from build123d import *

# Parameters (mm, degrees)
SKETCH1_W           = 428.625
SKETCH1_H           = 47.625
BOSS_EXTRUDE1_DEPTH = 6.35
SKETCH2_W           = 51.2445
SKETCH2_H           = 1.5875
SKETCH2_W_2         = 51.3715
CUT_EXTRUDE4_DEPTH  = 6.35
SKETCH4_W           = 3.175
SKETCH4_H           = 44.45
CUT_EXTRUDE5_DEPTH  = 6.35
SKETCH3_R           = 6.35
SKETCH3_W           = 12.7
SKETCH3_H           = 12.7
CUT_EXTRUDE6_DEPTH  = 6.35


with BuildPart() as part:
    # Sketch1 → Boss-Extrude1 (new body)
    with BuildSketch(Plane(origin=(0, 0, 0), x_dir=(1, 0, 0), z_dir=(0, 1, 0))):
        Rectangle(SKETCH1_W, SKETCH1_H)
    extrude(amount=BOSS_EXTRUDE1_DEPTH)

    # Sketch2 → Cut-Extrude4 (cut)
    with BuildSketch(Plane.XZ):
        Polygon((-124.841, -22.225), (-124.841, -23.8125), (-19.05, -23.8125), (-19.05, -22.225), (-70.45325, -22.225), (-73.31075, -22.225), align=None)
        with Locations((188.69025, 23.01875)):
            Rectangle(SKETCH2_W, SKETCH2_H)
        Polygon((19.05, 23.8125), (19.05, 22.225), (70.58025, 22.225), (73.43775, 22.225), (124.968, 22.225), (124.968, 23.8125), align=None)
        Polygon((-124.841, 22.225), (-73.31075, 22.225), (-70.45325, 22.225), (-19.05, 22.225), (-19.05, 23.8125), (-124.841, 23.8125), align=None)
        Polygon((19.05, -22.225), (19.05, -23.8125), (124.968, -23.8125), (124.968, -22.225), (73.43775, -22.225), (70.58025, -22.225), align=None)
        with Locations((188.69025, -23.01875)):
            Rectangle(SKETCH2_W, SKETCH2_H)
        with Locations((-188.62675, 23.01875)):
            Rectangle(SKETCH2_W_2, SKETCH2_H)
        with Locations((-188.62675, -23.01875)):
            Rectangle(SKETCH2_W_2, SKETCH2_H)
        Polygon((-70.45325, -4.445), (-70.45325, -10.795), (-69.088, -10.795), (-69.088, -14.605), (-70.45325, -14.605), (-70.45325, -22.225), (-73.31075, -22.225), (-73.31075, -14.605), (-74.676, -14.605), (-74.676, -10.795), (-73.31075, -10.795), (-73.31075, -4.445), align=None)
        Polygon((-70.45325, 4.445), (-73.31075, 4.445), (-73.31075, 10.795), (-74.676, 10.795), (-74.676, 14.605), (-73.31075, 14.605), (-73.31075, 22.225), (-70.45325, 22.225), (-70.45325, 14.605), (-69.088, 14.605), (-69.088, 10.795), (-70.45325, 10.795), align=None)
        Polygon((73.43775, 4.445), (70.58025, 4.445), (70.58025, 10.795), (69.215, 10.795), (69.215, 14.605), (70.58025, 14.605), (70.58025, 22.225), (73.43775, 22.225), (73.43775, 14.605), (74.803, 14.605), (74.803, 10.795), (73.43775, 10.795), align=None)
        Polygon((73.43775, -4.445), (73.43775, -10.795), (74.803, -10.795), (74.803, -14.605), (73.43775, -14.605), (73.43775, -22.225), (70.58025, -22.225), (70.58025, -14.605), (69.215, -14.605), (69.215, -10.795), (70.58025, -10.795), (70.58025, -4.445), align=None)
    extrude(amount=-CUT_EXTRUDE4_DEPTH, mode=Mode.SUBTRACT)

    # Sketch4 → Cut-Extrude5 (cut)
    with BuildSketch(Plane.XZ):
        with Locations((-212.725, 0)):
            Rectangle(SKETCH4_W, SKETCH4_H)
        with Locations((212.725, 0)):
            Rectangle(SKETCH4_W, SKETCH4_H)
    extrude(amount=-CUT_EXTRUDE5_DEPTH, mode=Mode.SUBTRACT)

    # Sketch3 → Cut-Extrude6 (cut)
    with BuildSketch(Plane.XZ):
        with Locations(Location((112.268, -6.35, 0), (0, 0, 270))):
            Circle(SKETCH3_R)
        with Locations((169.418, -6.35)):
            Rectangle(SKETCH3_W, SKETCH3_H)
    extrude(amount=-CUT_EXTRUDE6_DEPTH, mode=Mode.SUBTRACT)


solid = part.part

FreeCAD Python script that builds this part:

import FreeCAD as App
import Part
import Sketcher
from FreeCAD import Vector
Q = App.Units.Quantity


def add_polygon(sketch, points):
    """Adds a closed chain of lines whose ends are joined by coincident constraints."""
    first, n = sketch.GeometryCount, len(points)
    for a, b in zip(points, points[1:] + points[:1]):
        sketch.addGeometry(Part.LineSegment(App.Vector(*a, 0), App.Vector(*b, 0)), False)
    for i in range(n):
        sketch.addConstraint(Sketcher.Constraint("Coincident", first + i, 2, first + (i + 1) % n, 1))

doc = App.newDocument("Part")
body = doc.addObject("PartDesign::Body", "Body")

# Sketch on XZ plane
sketch1 = doc.addObject("Sketcher::SketchObject", "Sketch")
body.addObject(sketch1)
sketch1.AttachmentSupport = (doc.XZ_Plane, [""])
sketch1.MapMode = "FlatFace"
add_polygon(sketch1, [(-214.3125, -23.8125), (-214.3125, 23.8125), (214.3125, 23.8125), (214.3125, -23.8125)])  # lines 0-3
sketch1.addConstraint(Sketcher.Constraint("Vertical", 0))
sketch1.addConstraint(Sketcher.Constraint("Horizontal", 1))
sketch1.addConstraint(Sketcher.Constraint("Vertical", 2))
sketch1.addConstraint(Sketcher.Constraint("Horizontal", 3))
sketch1.addConstraint(Sketcher.Constraint("Symmetric", 0, 2, 2, 2, -1, 1))
sketch1.addConstraint(Sketcher.Constraint("DistanceX", 1, 1, 1, 2, Q("16.875 in")))
sketch1.addConstraint(Sketcher.Constraint("DistanceY", 0, 1, 0, 2, Q("1.875 in")))
pad1 = doc.addObject("PartDesign::Pad", "Pad")
body.addObject(pad1)
pad1.Profile = sketch1
pad1.Length = Q("0.25 in")
pad1.Reversed = True

# Sketch on XZ plane
sketch2 = doc.addObject("Sketcher::SketchObject", "Sketch001")
body.addObject(sketch2)
sketch2.AttachmentSupport = (doc.XZ_Plane, [""])
sketch2.MapMode = "FlatFace"
add_polygon(sketch2, [(-124.841, -22.225), (-124.841, -23.8125), (-19.05, -23.8125), (-19.05, -22.225), (-70.45325, -22.225), (-70.45325, -14.605), (-69.088, -14.605), (-69.088, -10.795), (-70.45325, -10.795), (-70.45325, -4.445), (-73.31075, -4.445), (-73.31075, -10.795), (-74.676, -10.795), (-74.676, -14.605), (-73.31075, -14.605), (-73.31075, -22.225)])  # lines 0-15
add_polygon(sketch2, [(163.068, 23.8125), (163.068, 22.225), (214.3125, 22.225), (214.3125, 23.8125)])  # lines 16-19
add_polygon(sketch2, [(19.05, 23.8125), (19.05, 22.225), (70.58025, 22.225), (70.58025, 14.605), (69.215, 14.605), (69.215, 10.795), (70.58025, 10.795), (70.58025, 4.445), (73.43775, 4.445), (73.43775, 10.795), (74.803, 10.795), (74.803, 14.605), (73.43775, 14.605), (73.43775, 22.225), (124.968, 22.225), (124.968, 23.8125)])  # lines 20-35
add_polygon(sketch2, [(-124.841, 22.225), (-73.31075, 22.225), (-73.31075, 14.605), (-74.676, 14.605), (-74.676, 10.795), (-73.31075, 10.795), (-73.31075, 4.445), (-70.45325, 4.445), (-70.45325, 10.795), (-69.088, 10.795), (-69.088, 14.605), (-70.45325, 14.605), (-70.45325, 22.225), (-19.05, 22.225), (-19.05, 23.8125), (-124.841, 23.8125)])  # lines 36-51
add_polygon(sketch2, [(19.05, -22.225), (19.05, -23.8125), (124.968, -23.8125), (124.968, -22.225), (73.43775, -22.225), (73.43775, -14.605), (74.803, -14.605), (74.803, -10.795), (73.43775, -10.795), (73.43775, -4.445), (70.58025, -4.445), (70.58025, -10.795), (69.215, -10.795), (69.215, -14.605), (70.58025, -14.605), (70.58025, -22.225)])  # lines 52-67
add_polygon(sketch2, [(163.068, -22.225), (163.068, -23.8125), (214.3125, -23.8125), (214.3125, -22.225)])  # lines 68-71
add_polygon(sketch2, [(-214.3125, 23.8125), (-214.3125, 22.225), (-162.941, 22.225), (-162.941, 23.8125)])  # lines 72-75
add_polygon(sketch2, [(-214.3125, -22.225), (-214.3125, -23.8125), (-162.941, -23.8125), (-162.941, -22.225)])  # lines 76-79
sketch2.addConstraint(Sketcher.Constraint("Vertical", 0))
sketch2.addConstraint(Sketcher.Constraint("Horizontal", 1))
sketch2.addConstraint(Sketcher.Constraint("Vertical", 2))
sketch2.addConstraint(Sketcher.Constraint("Horizontal", 3))
sketch2.addConstraint(Sketcher.Constraint("Vertical", 4))
sketch2.addConstraint(Sketcher.Constraint("Horizontal", 5))
sketch2.addConstraint(Sketcher.Constraint("Vertical", 6))
sketch2.addConstraint(Sketcher.Constraint("Horizontal", 7))
sketch2.addConstraint(Sketcher.Constraint("Vertical", 8))
sketch2.addConstraint(Sketcher.Constraint("Horizontal", 9))
sketch2.addConstraint(Sketcher.Constraint("Vertical", 10))
sketch2.addConstraint(Sketcher.Constraint("Horizontal", 11))
sketch2.addConstraint(Sketcher.Constraint("Vertical", 12))
sketch2.addConstraint(Sketcher.Constraint("Horizontal", 13))
sketch2.addConstraint(Sketcher.Constraint("Vertical", 14))
sketch2.addConstraint(Sketcher.Constraint("Horizontal", 15))
sketch2.addConstraint(Sketcher.Constraint("Vertical", 16))
sketch2.addConstraint(Sketcher.Constraint("Horizontal", 17))
sketch2.addConstraint(Sketcher.Constraint("Vertical", 18))
sketch2.addConstraint(Sketcher.Constraint("Horizontal", 19))
sketch2.addConstraint(Sketcher.Constraint("Vertical", 20))
sketch2.addConstraint(Sketcher.Constraint("Horizontal", 21))
sketch2.addConstraint(Sketcher.Constraint("Vertical", 22))
sketch2.addConstraint(Sketcher.Constraint("Horizontal", 23))
sketch2.addConstraint(Sketcher.Constraint("Vertical", 24))
sketch2.addConstraint(Sketcher.Constraint("Horizontal", 25))
sketch2.addConstraint(Sketcher.Constraint("Vertical", 26))
sketch2.addConstraint(Sketcher.Constraint("Horizontal", 27))
sketch2.addConstraint(Sketcher.Constraint("Vertical", 28))
sketch2.addConstraint(Sketcher.Constraint("Horizontal", 29))
sketch2.addConstraint(Sketcher.Constraint("Vertical", 30))
sketch2.addConstraint(Sketcher.Constraint("Horizontal", 31))
sketch2.addConstraint(Sketcher.Constraint("Vertical", 32))
sketch2.addConstraint(Sketcher.Constraint("Horizontal", 33))
sketch2.addConstraint(Sketcher.Constraint("Vertical", 34))
sketch2.addConstraint(Sketcher.Constraint("Horizontal", 35))
sketch2.addConstraint(Sketcher.Constraint("Horizontal", 36))
sketch2.addConstraint(Sketcher.Constraint("Vertical", 37))
sketch2.addConstraint(Sketcher.Constraint("Horizontal", 38))
sketch2.addConstraint(Sketcher.Constraint("Vertical", 39))
sketch2.addConstraint(Sketcher.Constraint("Horizontal", 40))
sketch2.addConstraint(Sketcher.Constraint("Vertical", 41))
sketch2.addConstraint(Sketcher.Constraint("Horizontal", 42))
sketch2.addConstraint(Sketcher.Constraint("Vertical", 43))
sketch2.addConstraint(Sketcher.Constraint("Horizontal", 44))
sketch2.addConstraint(Sketcher.Constraint("Vertical", 45))
sketch2.addConstraint(Sketcher.Constraint("Horizontal", 46))
sketch2.addConstraint(Sketcher.Constraint("Vertical", 47))
sketch2.addConstraint(Sketcher.Constraint("Horizontal", 48))
sketch2.addConstraint(Sketcher.Constraint("Vertical", 49))
sketch2.addConstraint(Sketcher.Constraint("Horizontal", 50))
sketch2.addConstraint(Sketcher.Constraint("Vertical", 51))
sketch2.addConstraint(Sketcher.Constraint("Vertical", 52))
sketch2.addConstraint(Sketcher.Constraint("Horizontal", 53))
sketch2.addConstraint(Sketcher.Constraint("Vertical", 54))
sketch2.addConstraint(Sketcher.Constraint("Horizontal", 55))
sketch2.addConstraint(Sketcher.Constraint("Vertical", 56))
sketch2.addConstraint(Sketcher.Constraint("Horizontal", 57))
sketch2.addConstraint(Sketcher.Constraint("Vertical", 58))
sketch2.addConstraint(Sketcher.Constraint("Horizontal", 59))
sketch2.addConstraint(Sketcher.Constraint("Vertical", 60))
sketch2.addConstraint(Sketcher.Constraint("Horizontal", 61))
sketch2.addConstraint(Sketcher.Constraint("Vertical", 62))
sketch2.addConstraint(Sketcher.Constraint("Horizontal", 63))
sketch2.addConstraint(Sketcher.Constraint("Vertical", 64))
sketch2.addConstraint(Sketcher.Constraint("Horizontal", 65))
sketch2.addConstraint(Sketcher.Constraint("Vertical", 66))
sketch2.addConstraint(Sketcher.Constraint("Horizontal", 67))
sketch2.addConstraint(Sketcher.Constraint("Vertical", 68))
sketch2.addConstraint(Sketcher.Constraint("Horizontal", 69))
sketch2.addConstraint(Sketcher.Constraint("Vertical", 70))
sketch2.addConstraint(Sketcher.Constraint("Horizontal", 71))
sketch2.addConstraint(Sketcher.Constraint("Vertical", 72))
sketch2.addConstraint(Sketcher.Constraint("Horizontal", 73))
sketch2.addConstraint(Sketcher.Constraint("Vertical", 74))
sketch2.addConstraint(Sketcher.Constraint("Horizontal", 75))
sketch2.addConstraint(Sketcher.Constraint("Vertical", 76))
sketch2.addConstraint(Sketcher.Constraint("Horizontal", 77))
sketch2.addConstraint(Sketcher.Constraint("Vertical", 78))
sketch2.addConstraint(Sketcher.Constraint("Horizontal", 79))
sketch2.addConstraint(Sketcher.Constraint("Symmetric", 2, 2, 20, 2, -1, 1))
sketch2.addConstraint(Sketcher.Constraint("Symmetric", 49, 2, 52, 2, -1, 1))
sketch2.addConstraint(Sketcher.Constraint("Symmetric", 70, 2, 72, 2, -1, 1))
sketch2.addConstraint(Sketcher.Constraint("Symmetric", 18, 2, 76, 2, -1, 1))
sketch2.addConstraint(Sketcher.Constraint("Symmetric", 20, 2, 48, 2, -2))
sketch2.addConstraint(Sketcher.Constraint("Symmetric", 17, 2, 72, 2, -2))
sketch2.addConstraint(Sketcher.Constraint("Symmetric", 14, 2, 36, 2, -1))
sketch2.addConstraint(Sketcher.Constraint("Symmetric", 12, 2, 38, 2, -1))
sketch2.addConstraint(Sketcher.Constraint("Symmetric", 10, 2, 40, 2, -1))
sketch2.addConstraint(Sketcher.Constraint("Symmetric", 8, 2, 42, 2, -1))
sketch2.addConstraint(Sketcher.Constraint("Symmetric", 6, 2, 44, 2, -1))
sketch2.addConstraint(Sketcher.Constraint("Symmetric", 4, 2, 46, 2, -1))
sketch2.addConstraint(Sketcher.Constraint("Symmetric", 0, 2, 50, 2, -1))
sketch2.addConstraint(Sketcher.Constraint("Symmetric", 34, 2, 53, 2, -1))
sketch2.addConstraint(Sketcher.Constraint("Symmetric", 32, 2, 55, 2, -1))
sketch2.addConstraint(Sketcher.Constraint("Symmetric", 30, 2, 57, 2, -1))
sketch2.addConstraint(Sketcher.Constraint("Symmetric", 28, 2, 59, 2, -1))
sketch2.addConstraint(Sketcher.Constraint("Symmetric", 26, 2, 61, 2, -1))
sketch2.addConstraint(Sketcher.Constraint("Symmetric", 24, 2, 63, 2, -1))
sketch2.addConstraint(Sketcher.Constraint("Symmetric", 22, 2, 65, 2, -1))
sketch2.addConstraint(Sketcher.Constraint("Symmetric", 19, 2, 68, 2, -1))
sketch2.addConstraint(Sketcher.Constraint("Symmetric", 74, 2, 77, 2, -1))
sketch2.addConstraint(Sketcher.Constraint("Horizontal", 7, 2, 10, 2))
sketch2.addConstraint(Sketcher.Constraint("Horizontal", 5, 2, 12, 2))
sketch2.addConstraint(Sketcher.Constraint("Horizontal", 3, 2, 14, 2))
sketch2.addConstraint(Sketcher.Constraint("Horizontal", 17, 2, 20, 2))
sketch2.addConstraint(Sketcher.Constraint("Horizontal", 25, 2, 28, 2))
sketch2.addConstraint(Sketcher.Constraint("Horizontal", 23, 2, 30, 2))
sketch2.addConstraint(Sketcher.Constraint("Horizontal", 21, 2, 32, 2))
sketch2.addConstraint(Sketcher.Constraint("Horizontal", 19, 2, 34, 2))
sketch2.addConstraint(Sketcher.Constraint("Horizontal", 31, 2, 37, 2))
sketch2.addConstraint(Sketcher.Constraint("Horizontal", 29, 2, 39, 2))
sketch2.addConstraint(Sketcher.Constraint("Horizontal", 27, 2, 41, 2))
sketch2.addConstraint(Sketcher.Constraint("Horizontal", 55, 2, 66, 2))
sketch2.addConstraint(Sketcher.Constraint("Horizontal", 71, 2, 78, 2))
sketch2.addConstraint(Sketcher.Constraint("Vertical", 4, 2, 7, 2))
sketch2.addConstraint(Sketcher.Constraint("Vertical", 10, 2, 13, 2))
sketch2.addConstraint(Sketcher.Constraint("Vertical", 22, 2, 25, 2))
sketch2.addConstraint(Sketcher.Constraint("Vertical", 28, 2, 31, 2))
sketch2.addConstraint(Sketcher.Constraint("Equal", 7, 11))
sketch2.addConstraint(Sketcher.Constraint("Equal", 15, 21))
sketch2.addConstraint(Sketcher.Constraint("Equal", 13, 23))
sketch2.addConstraint(Sketcher.Constraint("Equal", 9, 27))
sketch2.addConstraint(Sketcher.Constraint("Equal", 25, 29))
sketch2.addConstraint(Sketcher.Constraint("Equal", 21, 33))
sketch2.addConstraint(Sketcher.Constraint("DistanceY", 4, 1, 4, 2, Q("0.3 in")))
sketch2.addConstraint(Sketcher.Constraint("DistanceX", 35, 2, 35, 1, Q("4.17 in")))
sketch2.addConstraint(Sketcher.Constraint("DistanceY", 6, 1, 6, 2, Q("0.15 in")))
sketch2.addConstraint(Sketcher.Constraint("DistanceY", 8, 1, 8, 2, Q("0.25 in")))
sketch2.addConstraint(Sketcher.Constraint("DistanceX", 1, 1, 1, 2, Q("4.165 in")))
sketch2.addConstraint(Sketcher.Constraint("DistanceY", 0, 2, 0, 1, Q("0.0625 in")))
sketch2.addConstraint(Sketcher.Constraint("DistanceX", 1, 2, -1, 1, Q("0.75 in")))
sketch2.addConstraint(Sketcher.Constraint("DistanceX", 5, 2, -1, 1, Q("2.72 in")))
sketch2.addConstraint(Sketcher.Constraint("DistanceX", -1, 1, 16, 2, Q("6.42 in")))
sketch2.addConstraint(Sketcher.Constraint("DistanceX", 9, 2, 9, 1, Q("0.1125 in")))
sketch2.addConstraint(Sketcher.Constraint("DistanceX", 17, 1, 17, 2, Q("2.0175 in")))
sketch2.addConstraint(Sketcher.Constraint("DistanceX", 73, 1, 73, 2, Q("2.0225 in")))
sketch2.addConstraint(Sketcher.Constraint("DistanceY", 0, 2, -1, 1, Q("0.9375 in")))
pocket1 = doc.addObject("PartDesign::Pocket", "Pocket")
body.addObject(pocket1)
pocket1.Profile = sketch2
pocket1.Length = Q("0.25 in")

# Sketch on XZ plane
sketch3 = doc.addObject("Sketcher::SketchObject", "Sketch002")
body.addObject(sketch3)
sketch3.AttachmentSupport = (doc.XZ_Plane, [""])
sketch3.MapMode = "FlatFace"
add_polygon(sketch3, [(-214.3125, 22.225), (-214.3125, -22.225), (-211.1375, -22.225), (-211.1375, 22.225)])  # lines 0-3
add_polygon(sketch3, [(211.1375, 22.225), (211.1375, -22.225), (214.3125, -22.225), (214.3125, 22.225)])  # lines 4-7
sketch3.addConstraint(Sketcher.Constraint("Vertical", 0))
sketch3.addConstraint(Sketcher.Constraint("Horizontal", 1))
sketch3.addConstraint(Sketcher.Constraint("Vertical", 2))
sketch3.addConstraint(Sketcher.Constraint("Horizontal", 3))
sketch3.addConstraint(Sketcher.Constraint("Vertical", 4))
sketch3.addConstraint(Sketcher.Constraint("Horizontal", 5))
sketch3.addConstraint(Sketcher.Constraint("Vertical", 6))
sketch3.addConstraint(Sketcher.Constraint("Horizontal", 7))
sketch3.addConstraint(Sketcher.Constraint("Symmetric", 2, 2, 4, 2, -1, 1))
sketch3.addConstraint(Sketcher.Constraint("Symmetric", 0, 2, 6, 2, -1, 1))
sketch3.addConstraint(Sketcher.Constraint("Horizontal", 1, 2, 4, 2))
sketch3.addConstraint(Sketcher.Constraint("DistanceY", 0, 2, 0, 1, Q("1.75 in")))
sketch3.addConstraint(Sketcher.Constraint("DistanceX", 1, 1, 1, 2, Q("0.125 in")))
sketch3.addConstraint(Sketcher.Constraint("DistanceX", 0, 2, 4, 2, Q("16.75 in")))
pocket2 = doc.addObject("PartDesign::Pocket", "Pocket001")
body.addObject(pocket2)
pocket2.Profile = sketch3
pocket2.Length = Q("0.25 in")

# Sketch on XZ plane
sketch4 = doc.addObject("Sketcher::SketchObject", "Sketch003")
body.addObject(sketch4)
sketch4.AttachmentSupport = (doc.XZ_Plane, [""])
sketch4.MapMode = "FlatFace"
sketch4.addGeometry(Part.Circle(Vector(112.268, -6.35, 0), Vector(0, 0, 1), 6.35), False)  # 0
add_polygon(sketch4, [(163.068, 0), (163.068, -12.7), (175.768, -12.7), (175.768, 0)])  # lines 1-4
sketch4.addConstraint(Sketcher.Constraint("Vertical", 1))
sketch4.addConstraint(Sketcher.Constraint("Horizontal", 2))
sketch4.addConstraint(Sketcher.Constraint("Vertical", 3))
sketch4.addConstraint(Sketcher.Constraint("Horizontal", 4))
sketch4.addConstraint(Sketcher.Constraint("PointOnObject", 3, 2, -1))
sketch4.addConstraint(Sketcher.Constraint("Equal", 4, 1))
sketch4.addConstraint(Sketcher.Constraint("Diameter", 0, Q("0.5 in")))
sketch4.addConstraint(Sketcher.Constraint("DistanceX", 2, 1, 2, 2, Q("0.5 in")))
sketch4.addConstraint(Sketcher.Constraint("DistanceX", 0, 3, 1, 2, Q("2 in")))
sketch4.addConstraint(Sketcher.Constraint("DistanceX", -1, 1, 0, 3, Q("4.42 in")))
sketch4.addConstraint(Sketcher.Constraint("DistanceY", 0, 3, -1, 1, Q("0.25 in")))
pocket3 = doc.addObject("PartDesign::Pocket", "Pocket002")
body.addObject(pocket3)
pocket3.Profile = sketch4
pocket3.Length = Q("0.25 in")

doc.recompute()
